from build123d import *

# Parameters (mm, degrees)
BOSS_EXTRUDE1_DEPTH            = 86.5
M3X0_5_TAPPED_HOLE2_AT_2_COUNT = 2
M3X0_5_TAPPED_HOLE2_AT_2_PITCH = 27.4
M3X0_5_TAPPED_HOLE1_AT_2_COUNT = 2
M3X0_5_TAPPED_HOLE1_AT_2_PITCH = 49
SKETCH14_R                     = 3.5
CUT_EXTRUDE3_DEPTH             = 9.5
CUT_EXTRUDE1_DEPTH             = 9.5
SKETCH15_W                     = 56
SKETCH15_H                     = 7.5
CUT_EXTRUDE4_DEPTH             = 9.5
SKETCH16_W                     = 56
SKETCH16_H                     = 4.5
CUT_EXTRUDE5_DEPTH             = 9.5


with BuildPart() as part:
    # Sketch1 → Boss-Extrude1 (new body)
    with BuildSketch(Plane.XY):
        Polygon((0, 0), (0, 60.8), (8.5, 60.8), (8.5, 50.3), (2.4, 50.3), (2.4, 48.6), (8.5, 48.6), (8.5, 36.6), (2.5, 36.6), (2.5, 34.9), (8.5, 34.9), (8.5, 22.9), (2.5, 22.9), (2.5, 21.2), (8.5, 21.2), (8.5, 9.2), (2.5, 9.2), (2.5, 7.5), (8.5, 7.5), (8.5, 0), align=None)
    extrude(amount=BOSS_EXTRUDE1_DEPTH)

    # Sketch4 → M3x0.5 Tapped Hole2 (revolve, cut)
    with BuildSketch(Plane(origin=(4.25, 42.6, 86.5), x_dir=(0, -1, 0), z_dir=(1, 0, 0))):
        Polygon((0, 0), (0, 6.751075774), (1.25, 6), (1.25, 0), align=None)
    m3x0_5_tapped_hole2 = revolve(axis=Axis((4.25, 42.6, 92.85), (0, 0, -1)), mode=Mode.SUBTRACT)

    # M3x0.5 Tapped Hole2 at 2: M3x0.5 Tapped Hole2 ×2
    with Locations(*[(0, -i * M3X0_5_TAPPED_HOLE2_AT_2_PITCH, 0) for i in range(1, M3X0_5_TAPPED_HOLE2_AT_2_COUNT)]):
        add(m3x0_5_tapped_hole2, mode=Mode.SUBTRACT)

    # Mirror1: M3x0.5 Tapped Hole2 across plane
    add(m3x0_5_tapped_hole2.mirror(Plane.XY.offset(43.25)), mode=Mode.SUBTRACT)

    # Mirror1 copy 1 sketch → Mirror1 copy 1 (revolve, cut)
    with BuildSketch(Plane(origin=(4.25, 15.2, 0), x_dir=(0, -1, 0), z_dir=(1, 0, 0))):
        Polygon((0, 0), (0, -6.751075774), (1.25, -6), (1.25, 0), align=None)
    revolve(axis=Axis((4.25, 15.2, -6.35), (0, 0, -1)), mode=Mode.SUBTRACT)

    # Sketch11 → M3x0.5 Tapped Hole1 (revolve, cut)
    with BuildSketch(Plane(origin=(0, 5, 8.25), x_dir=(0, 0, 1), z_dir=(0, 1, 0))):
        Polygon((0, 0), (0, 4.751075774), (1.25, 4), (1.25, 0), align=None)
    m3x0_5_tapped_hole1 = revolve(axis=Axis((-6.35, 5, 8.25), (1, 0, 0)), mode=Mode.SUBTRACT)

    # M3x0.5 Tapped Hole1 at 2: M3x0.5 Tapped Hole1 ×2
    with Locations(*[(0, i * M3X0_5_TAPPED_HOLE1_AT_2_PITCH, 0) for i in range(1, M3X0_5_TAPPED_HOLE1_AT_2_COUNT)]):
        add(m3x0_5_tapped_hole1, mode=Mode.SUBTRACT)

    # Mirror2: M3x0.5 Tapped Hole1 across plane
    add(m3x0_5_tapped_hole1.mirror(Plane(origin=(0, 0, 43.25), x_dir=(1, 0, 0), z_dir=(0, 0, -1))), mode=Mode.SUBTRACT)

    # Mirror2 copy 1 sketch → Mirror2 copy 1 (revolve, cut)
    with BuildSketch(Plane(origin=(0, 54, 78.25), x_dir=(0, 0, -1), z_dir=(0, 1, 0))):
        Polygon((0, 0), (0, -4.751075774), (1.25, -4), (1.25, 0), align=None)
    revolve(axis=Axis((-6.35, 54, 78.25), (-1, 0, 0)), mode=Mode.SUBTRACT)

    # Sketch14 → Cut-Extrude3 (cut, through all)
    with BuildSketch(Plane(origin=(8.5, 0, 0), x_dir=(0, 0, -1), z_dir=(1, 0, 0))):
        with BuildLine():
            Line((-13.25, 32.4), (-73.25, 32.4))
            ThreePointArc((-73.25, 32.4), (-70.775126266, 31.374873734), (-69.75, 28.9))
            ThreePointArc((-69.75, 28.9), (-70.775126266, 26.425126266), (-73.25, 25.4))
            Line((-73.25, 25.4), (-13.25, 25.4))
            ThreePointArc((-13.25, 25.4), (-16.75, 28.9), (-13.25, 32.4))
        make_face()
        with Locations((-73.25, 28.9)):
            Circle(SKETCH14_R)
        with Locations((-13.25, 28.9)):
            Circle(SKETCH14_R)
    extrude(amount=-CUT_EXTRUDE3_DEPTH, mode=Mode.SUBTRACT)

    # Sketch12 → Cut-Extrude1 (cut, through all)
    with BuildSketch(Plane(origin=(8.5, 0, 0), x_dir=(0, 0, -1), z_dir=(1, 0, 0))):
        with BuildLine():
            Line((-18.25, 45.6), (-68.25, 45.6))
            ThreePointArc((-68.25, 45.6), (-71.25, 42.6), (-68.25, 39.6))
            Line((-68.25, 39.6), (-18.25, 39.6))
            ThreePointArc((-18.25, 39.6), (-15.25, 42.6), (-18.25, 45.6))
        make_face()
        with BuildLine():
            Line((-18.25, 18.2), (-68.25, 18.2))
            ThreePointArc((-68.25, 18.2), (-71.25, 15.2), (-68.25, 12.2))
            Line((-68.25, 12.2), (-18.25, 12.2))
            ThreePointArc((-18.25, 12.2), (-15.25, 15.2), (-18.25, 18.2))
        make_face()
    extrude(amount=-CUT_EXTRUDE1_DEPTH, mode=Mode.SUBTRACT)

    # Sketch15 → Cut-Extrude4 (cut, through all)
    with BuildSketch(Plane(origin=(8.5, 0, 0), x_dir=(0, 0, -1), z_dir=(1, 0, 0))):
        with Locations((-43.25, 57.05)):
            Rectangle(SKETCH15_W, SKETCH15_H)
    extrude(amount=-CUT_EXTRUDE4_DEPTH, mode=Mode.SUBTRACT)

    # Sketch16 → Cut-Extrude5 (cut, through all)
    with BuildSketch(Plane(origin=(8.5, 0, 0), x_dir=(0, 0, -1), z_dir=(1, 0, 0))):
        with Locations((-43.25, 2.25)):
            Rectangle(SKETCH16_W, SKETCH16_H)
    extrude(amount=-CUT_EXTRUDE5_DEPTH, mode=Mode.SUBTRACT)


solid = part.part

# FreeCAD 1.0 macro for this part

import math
import FreeCAD as App
import Part
import Sketcher
from FreeCAD import Vector
Q = App.Units.Quantity


def add_polygon(sketch, points):
    """Adds a closed chain of lines whose ends are joined by coincident constraints."""
    first, n = sketch.GeometryCount, len(points)
    for a, b in zip(points, points[1:] + points[:1]):
        sketch.addGeometry(Part.LineSegment(App.Vector(*a, 0), App.Vector(*b, 0)), False)
    for i in range(n):
        sketch.addConstraint(Sketcher.Constraint("Coincident", first + i, 2, first + (i + 1) % n, 1))

doc = App.newDocument("Part")
body = doc.addObject("PartDesign::Body", "Body")

# Sketch on XY plane
sketch1 = body.newObject("Sketcher::SketchObject", "Sketch")
sketch1.AttachmentSupport = (doc.getObject("XY_Plane"), [""])
sketch1.MapMode = "FlatFace"
add_polygon(sketch1, [(0, 60.8), (0, 0), (8.5, 0), (8.5, 7.5), (2.5, 7.5), (2.5, 9.2), (8.5, 9.2), (8.5, 21.2), (2.5, 21.2), (2.5, 22.9), (8.5, 22.9), (8.5, 34.9), (2.5, 34.9), (2.5, 36.6), (8.5, 36.6), (8.5, 48.6), (2.4, 48.6), (2.4, 50.3), (8.5, 50.3), (8.5, 60.8)])  # lines 0-19
sketch1.addConstraint(Sketcher.Constraint("Vertical", 0))
sketch1.addConstraint(Sketcher.Constraint("Horizontal", 1))
sketch1.addConstraint(Sketcher.Constraint("Vertical", 2))
sketch1.addConstraint(Sketcher.Constraint("Horizontal", 3))
sketch1.addConstraint(Sketcher.Constraint("Vertical", 4))
sketch1.addConstraint(Sketcher.Constraint("Horizontal", 5))
sketch1.addConstraint(Sketcher.Constraint("Vertical", 6))
sketch1.addConstraint(Sketcher.Constraint("Horizontal", 7))
sketch1.addConstraint(Sketcher.Constraint("Vertical", 8))
sketch1.addConstraint(Sketcher.Constraint("Horizontal", 9))
sketch1.addConstraint(Sketcher.Constraint("Vertical", 10))
sketch1.addConstraint(Sketcher.Constraint("Horizontal", 11))
sketch1.addConstraint(Sketcher.Constraint("Vertical", 12))
sketch1.addConstraint(Sketcher.Constraint("Horizontal", 13))
sketch1.addConstraint(Sketcher.Constraint("Vertical", 14))
sketch1.addConstraint(Sketcher.Constraint("Horizontal", 15))
sketch1.addConstraint(Sketcher.Constraint("Vertical", 16))
sketch1.addConstraint(Sketcher.Constraint("Horizontal", 17))
sketch1.addConstraint(Sketcher.Constraint("Vertical", 18))
sketch1.addConstraint(Sketcher.Constraint("Horizontal", 19))
sketch1.addConstraint(Sketcher.Constraint("Coincident", 0, 2, -1, 1))
sketch1.addConstraint(Sketcher.Constraint("Vertical", 2, 2, 5, 2))
sketch1.addConstraint(Sketcher.Constraint("Vertical", 4, 2, 7, 2))
sketch1.addConstraint(Sketcher.Constraint("Vertical", 6, 2, 9, 2))
sketch1.addConstraint(Sketcher.Constraint("Vertical", 8, 2, 11, 2))
sketch1.addConstraint(Sketcher.Constraint("Vertical", 10, 2, 13, 2))
sketch1.addConstraint(Sketcher.Constraint("Vertical", 14, 2, 17, 2))
sketch1.addConstraint(Sketcher.Constraint("Equal", 4, 8))
sketch1.addConstraint(Sketcher.Constraint("Equal", 6, 10))
sketch1.addConstraint(Sketcher.Constraint("Equal", 8, 12))
sketch1.addConstraint(Sketcher.Constraint("Equal", 10, 14))
sketch1.addConstraint(Sketcher.Constraint("Equal", 12, 16))
sketch1.addConstraint(Sketcher.Constraint("DistanceX", 3, 2, 3, 1, Q("6 mm")))
sketch1.addConstraint(Sketcher.Constraint("DistanceY", 6, 1, 6, 2, Q("12 mm")))
sketch1.addConstraint(Sketcher.Constraint("DistanceX", 1, 1, 1, 2, Q("8.5 mm")))
sketch1.addConstraint(Sketcher.Constraint("DistanceX", 15, 2, 15, 1, Q("6.1 mm")))
sketch1.addConstraint(Sketcher.Constraint("DistanceY", 0, 2, 0, 1, Q("60.8 mm")))
sketch1.addConstraint(Sketcher.Constraint("DistanceY", 2, 1, 2, 2, Q("7.5 mm")))
sketch1.addConstraint(Sketcher.Constraint("DistanceY", 4, 1, 4, 2, Q("1.7 mm")))
pad1 = body.newObject("PartDesign::Pad", "Pad")
pad1.Profile = sketch1
pad1.Length = 86.5

# Sketch on YZ plane
sketch2 = body.newObject("Sketcher::SketchObject", "Sketch001")
sketch2.AttachmentSupport = (doc.getObject("YZ_Plane"), [""])
sketch2.MapMode = "FlatFace"
sketch2.AttachmentOffset = App.Placement(Vector(0, 0, 4.25), App.Rotation())
add_polygon(sketch2, [(42.6, 79.7), (42.6, 86.5), (41.4, 86.5), (41.4, 80.5)])  # lines 0-3
sketch2.addGeometry(Part.LineSegment(Vector(42.6, 86.5, 0), Vector(42.6, 79.7, 0)), True)  # axis
sketch2.addConstraint(Sketcher.Constraint("Vertical", 0))
sketch2.addConstraint(Sketcher.Constraint("Horizontal", 1))
sketch2.addConstraint(Sketcher.Constraint("Vertical", 2))
sketch2.addConstraint(Sketcher.Constraint("Vertical", 4))
sketch2.addConstraint(Sketcher.Constraint("Coincident", 4, 1, 0, 2))
sketch2.addConstraint(Sketcher.Constraint("Equal", 0, 4))
sketch2.addConstraint(Sketcher.Constraint("DistanceY", 2, 2, 2, 1, Q("6 mm")))
sketch2.addConstraint(Sketcher.Constraint("Angle", 3, Q("-31 deg")))
sketch2.addConstraint(Sketcher.Constraint("DistanceX", 1, 2, 1, 1, Q("1.25 mm")))
sketch2.addConstraint(Sketcher.Constraint("DistanceX", -1, 1, 0, 2, Q("42.6 mm")))
sketch2.addConstraint(Sketcher.Constraint("DistanceY", -1, 1, 0, 2, Q("86.5 mm")))
groove = body.newObject("PartDesign::Groove", "Groove")
groove.Profile = sketch2
groove.ReferenceAxis = (sketch2, ["Axis0"])
groove.Angle = 360
doc.recompute()

linearpattern = body.newObject("PartDesign::LinearPattern", "LinearPattern")
linearpattern.Originals = [groove]
linearpattern.Direction = (doc.getObject("Y_Axis"), [""])
linearpattern.Mode = "offset"
linearpattern.Offset = 27.4
linearpattern.Occurrences = 2
linearpattern.Reversed = True
body.Tip = linearpattern
doc.recompute()

datumplane = body.newObject("PartDesign::Plane", "DatumPlane")
datumplane.AttachmentSupport = (doc.getObject("XY_Plane"), [""])
datumplane.MapMode = "FlatFace"
datumplane.AttachmentOffset = App.Placement(Vector(0, 0, 43.25), App.Rotation())
mirrored = body.newObject("PartDesign::Mirrored", "Mirrored")
mirrored.Originals = [groove]
mirrored.MirrorPlane = (datumplane, [""])
body.Tip = mirrored

# Sketch on YZ plane
sketch3 = body.newObject("Sketcher::SketchObject", "Sketch002")
sketch3.AttachmentSupport = (doc.getObject("YZ_Plane"), [""])
sketch3.MapMode = "FlatFace"
sketch3.AttachmentOffset = App.Placement(Vector(0, 0, 4.25), App.Rotation())
add_polygon(sketch3, [(15.2, 0), (15.2, 6.8), (13.9, 6), (13.9, 0)])  # lines 0-3
sketch3.addGeometry(Part.LineSegment(Vector(15.2, 6.8, 0), Vector(15.2, 0, 0)), True)  # axis
sketch3.addConstraint(Sketcher.Constraint("Vertical", 0))
sketch3.addConstraint(Sketcher.Constraint("Vertical", 2))
sketch3.addConstraint(Sketcher.Constraint("Horizontal", 3))
sketch3.addConstraint(Sketcher.Constraint("Vertical", 4))
sketch3.addConstraint(Sketcher.Constraint("Coincident", 4, 1, 0, 2))
sketch3.addConstraint(Sketcher.Constraint("PointOnObject", 2, 2, -1))
sketch3.addConstraint(Sketcher.Constraint("PointOnObject", 4, 2, -1))
sketch3.addConstraint(Sketcher.Constraint("DistanceY", 2, 2, 2, 1, Q("6 mm")))
sketch3.addConstraint(Sketcher.Constraint("Angle", 1, Q("-149 deg")))
sketch3.addConstraint(Sketcher.Constraint("DistanceX", 3, 1, 3, 2, Q("1.25 mm")))
sketch3.addConstraint(Sketcher.Constraint("DistanceX", -1, 1, 0, 2, Q("15.2 mm")))
groove2 = body.newObject("PartDesign::Groove", "Groove001")
groove2.Profile = sketch3
groove2.ReferenceAxis = (sketch3, ["Axis0"])
groove2.Angle = 360

# Sketch on XZ plane
sketch4 = body.newObject("Sketcher::SketchObject", "Sketch003")
sketch4.AttachmentSupport = (doc.getObject("XZ_Plane"), [""])
sketch4.MapMode = "FlatFace"
sketch4.AttachmentOffset = App.Placement(Vector(0, 0, -5), App.Rotation())
add_polygon(sketch4, [(4.8, 8.2), (0, 8.2), (0, 9.5), (4, 9.5)])  # lines 0-3
sketch4.addGeometry(Part.LineSegment(Vector(0, 8.2, 0), Vector(4.8, 8.2, 0)), True)  # axis
sketch4.addConstraint(Sketcher.Constraint("Horizontal", 0))
sketch4.addConstraint(Sketcher.Constraint("Vertical", 1))
sketch4.addConstraint(Sketcher.Constraint("Horizontal", 2))
sketch4.addConstraint(Sketcher.Constraint("Horizontal", 4))
sketch4.addConstraint(Sketcher.Constraint("Coincident", 4, 1, 0, 2))
sketch4.addConstraint(Sketcher.Constraint("PointOnObject", 0, 2, -2))
sketch4.addConstraint(Sketcher.Constraint("Equal", 0, 4))
sketch4.addConstraint(Sketcher.Constraint("DistanceX", 2, 1, 2, 2, Q("4 mm")))
sketch4.addConstraint(Sketcher.Constraint("Angle", 3, Q("-59 deg")))
sketch4.addConstraint(Sketcher.Constraint("DistanceY", 1, 1, 1, 2, Q("1.25 mm")))
sketch4.addConstraint(Sketcher.Constraint("DistanceY", -1, 1, 1, 2, Q("9.5 mm")))
groove3 = body.newObject("PartDesign::Groove", "Groove002")
groove3.Profile = sketch4
groove3.ReferenceAxis = (sketch4, ["Axis0"])
groove3.Angle = 360
doc.recompute()

linearpattern2 = body.newObject("PartDesign::LinearPattern", "LinearPattern001")
linearpattern2.Originals = [groove3]
linearpattern2.Direction = (doc.getObject("Y_Axis"), [""])
linearpattern2.Mode = "offset"
linearpattern2.Offset = 49
linearpattern2.Occurrences = 2
body.Tip = linearpattern2
doc.recompute()

datumplane2 = body.newObject("PartDesign::Plane", "DatumPlane001")
datumplane2.AttachmentSupport = (doc.getObject("XY_Plane"), [""])
datumplane2.MapMode = "FlatFace"
datumplane2.AttachmentOffset = App.Placement(Vector(0, 0, 43.25), App.Rotation())
mirrored2 = body.newObject("PartDesign::Mirrored", "Mirrored001")
mirrored2.Originals = [groove3]
mirrored2.MirrorPlane = (datumplane2, [""])
body.Tip = mirrored2

# Sketch on XZ plane
sketch5 = body.newObject("Sketcher::SketchObject", "Sketch004")
sketch5.AttachmentSupport = (doc.getObject("XZ_Plane"), [""])
sketch5.MapMode = "FlatFace"
sketch5.AttachmentOffset = App.Placement(Vector(0, 0, -54), App.Rotation())
add_polygon(sketch5, [(0, 78.2), (4.8, 78.2), (4, 77), (0, 77)])  # lines 0-3
sketch5.addGeometry(Part.LineSegment(Vector(4.8, 78.2, 0), Vector(0, 78.2, 0)), True)  # axis
sketch5.addConstraint(Sketcher.Constraint("Horizontal", 0))
sketch5.addConstraint(Sketcher.Constraint("Horizontal", 2))
sketch5.addConstraint(Sketcher.Constraint("Vertical", 3))
sketch5.addConstraint(Sketcher.Constraint("Horizontal", 4))
sketch5.addConstraint(Sketcher.Constraint("Coincident", 4, 1, 0, 2))
sketch5.addConstraint(Sketcher.Constraint("PointOnObject", 2, 2, -2))
sketch5.addConstraint(Sketcher.Constraint("PointOnObject", 4, 2, -2))
sketch5.addConstraint(Sketcher.Constraint("DistanceX", 2, 2, 2, 1, Q("4 mm")))
sketch5.addConstraint(Sketcher.Constraint("Angle", 1, Q("-121 deg")))
sketch5.addConstraint(Sketcher.Constraint("DistanceY", -1, 1, 1, 2, Q("77 mm")))
sketch5.addConstraint(Sketcher.Constraint("DistanceY", 3, 1, 3, 2, Q("1.25 mm")))
groove4 = body.newObject("PartDesign::Groove", "Groove003")
groove4.Profile = sketch5
groove4.ReferenceAxis = (sketch5, ["Axis0"])
groove4.Angle = 360

# Sketch on YZ plane
sketch6 = body.newObject("Sketcher::SketchObject", "Sketch005")
sketch6.AttachmentSupport = (doc.getObject("YZ_Plane"), [""])
sketch6.MapMode = "FlatFace"
sketch6.AttachmentOffset = App.Placement(Vector(0, 0, 8.5), App.Rotation())
sketch6.addGeometry(Part.LineSegment(Vector(32.4, 13.2, 0), Vector(32.4, 73.2, 0)), False)
sketch6.addGeometry(Part.ArcOfCircle(Part.Circle(Vector(28.9, 73.2, 0), Vector(0, 0, 1), 3.5), math.radians(0), math.radians(180)), False)
sketch6.addGeometry(Part.LineSegment(Vector(25.4, 73.2, 0), Vector(25.4, 13.2, 0)), False)
sketch6.addGeometry(Part.ArcOfCircle(Part.Circle(Vector(28.9, 13.2, 0), Vector(0, 0, 1), 3.5), math.radians(180), math.radians(360)), False)
sketch6.addConstraint(Sketcher.Constraint("Tangent", 0, 2, 1, 1))
sketch6.addConstraint(Sketcher.Constraint("Tangent", 1, 2, 2, 1))
sketch6.addConstraint(Sketcher.Constraint("Tangent", 2, 2, 3, 1))
sketch6.addConstraint(Sketcher.Constraint("Tangent", 3, 2, 0, 1))
sketch6.addConstraint(Sketcher.Constraint("Vertical", 0))
sketch6.addConstraint(Sketcher.Constraint("Vertical", 2))
sketch6.addConstraint(Sketcher.Constraint("Radius", 1, Q("3.5 mm")))
sketch6.addConstraint(Sketcher.Constraint("DistanceY", 0, 1, 0, 2, Q("60 mm")))
sketch6.addConstraint(Sketcher.Constraint("DistanceX", -1, 1, 1, 3, Q("28.9 mm")))
sketch6.addConstraint(Sketcher.Constraint("DistanceY", -1, 1, 1, 3, Q("73.25 mm")))
pocket1 = body.newObject("PartDesign::Pocket", "Pocket")
pocket1.Profile = sketch6
pocket1.Type = "ThroughAll"

# Sketch on YZ plane
sketch7 = body.newObject("Sketcher::SketchObject", "Sketch006")
sketch7.AttachmentSupport = (doc.getObject("YZ_Plane"), [""])
sketch7.MapMode = "FlatFace"
sketch7.AttachmentOffset = App.Placement(Vector(0, 0, 8.5), App.Rotation())
sketch7.addGeometry(Part.LineSegment(Vector(45.6, 18.2, 0), Vector(45.6, 68.2, 0)), False)
sketch7.addGeometry(Part.ArcOfCircle(Part.Circle(Vector(42.6, 68.2, 0), Vector(0, 0, 1), 3), math.radians(0), math.radians(180)), False)
sketch7.addGeometry(Part.LineSegment(Vector(39.6, 68.2, 0), Vector(39.6, 18.2, 0)), False)
sketch7.addGeometry(Part.ArcOfCircle(Part.Circle(Vector(42.6, 18.2, 0), Vector(0, 0, 1), 3), math.radians(180), math.radians(360)), False)
sketch7.addGeometry(Part.LineSegment(Vector(18.2, 18.2, 0), Vector(18.2, 68.2, 0)), False)
sketch7.addGeometry(Part.ArcOfCircle(Part.Circle(Vector(15.2, 68.2, 0), Vector(0, 0, 1), 3), math.radians(0), math.radians(180)), False)
sketch7.addGeometry(Part.LineSegment(Vector(12.2, 68.2, 0), Vector(12.2, 18.2, 0)), False)
sketch7.addGeometry(Part.ArcOfCircle(Part.Circle(Vector(15.2, 18.2, 0), Vector(0, 0, 1), 3), math.radians(180), math.radians(360)), False)
sketch7.addConstraint(Sketcher.Constraint("Tangent", 0, 2, 1, 1))
sketch7.addConstraint(Sketcher.Constraint("Tangent", 1, 2, 2, 1))
sketch7.addConstraint(Sketcher.Constraint("Tangent", 2, 2, 3, 1))
sketch7.addConstraint(Sketcher.Constraint("Tangent", 3, 2, 0, 1))
sketch7.addConstraint(Sketcher.Constraint("Tangent", 4, 2, 5, 1))
sketch7.addConstraint(Sketcher.Constraint("Tangent", 5, 2, 6, 1))
sketch7.addConstraint(Sketcher.Constraint("Tangent", 6, 2, 7, 1))
sketch7.addConstraint(Sketcher.Constraint("Tangent", 7, 2, 4, 1))
sketch7.addConstraint(Sketcher.Constraint("Vertical", 0))
sketch7.addConstraint(Sketcher.Constraint("Vertical", 2))
sketch7.addConstraint(Sketcher.Constraint("Vertical", 4))
sketch7.addConstraint(Sketcher.Constraint("Vertical", 6))
sketch7.addConstraint(Sketcher.Constraint("Equal", 3, 5))
sketch7.addConstraint(Sketcher.Constraint("Horizontal", 1, 3, 5, 3))
sketch7.addConstraint(Sketcher.Constraint("Horizontal", 3, 3, 7, 3))
sketch7.addConstraint(Sketcher.Constraint("Radius", 1, Q("3 mm")))
sketch7.addConstraint(Sketcher.Constraint("DistanceY", 0, 1, 0, 2, Q("50 mm")))
sketch7.addConstraint(Sketcher.Constraint("DistanceX", -1, 1, 1, 3, Q("42.6 mm")))
sketch7.addConstraint(Sketcher.Constraint("DistanceX", -1, 1, 5, 3, Q("15.2 mm")))
sketch7.addConstraint(Sketcher.Constraint("DistanceY", -1, 1, 1, 3, Q("68.25 mm")))
pocket2 = body.newObject("PartDesign::Pocket", "Pocket001")
pocket2.Profile = sketch7
pocket2.Type = "ThroughAll"

# Sketch on YZ plane
sketch8 = body.newObject("Sketcher::SketchObject", "Sketch007")
sketch8.AttachmentSupport = (doc.getObject("YZ_Plane"), [""])
sketch8.MapMode = "FlatFace"
sketch8.AttachmentOffset = App.Placement(Vector(0, 0, 8.5), App.Rotation())
add_polygon(sketch8, [(61, 71), (53, 71), (53, 15), (61, 15)])  # lines 0-3
sketch8.addConstraint(Sketcher.Constraint("Horizontal", 0))
sketch8.addConstraint(Sketcher.Constraint("Vertical", 1))
sketch8.addConstraint(Sketcher.Constraint("Horizontal", 2))
sketch8.addConstraint(Sketcher.Constraint("Vertical", 3))
sketch8.addConstraint(Sketcher.Constraint("DistanceY", 1, 2, 1, 1, Q("56 mm")))
sketch8.addConstraint(Sketcher.Constraint("DistanceX", 0, 2, 0, 1, Q("7.5 mm")))
sketch8.addConstraint(Sketcher.Constraint("DistanceX", -1, 1, 0, 2, Q("53.3 mm")))
sketch8.addConstraint(Sketcher.Constraint("DistanceY", -1, 1, 0, 2, Q("71.25 mm")))
pocket3 = body.newObject("PartDesign::Pocket", "Pocket002")
pocket3.Profile = sketch8
pocket3.Type = "ThroughAll"

# Sketch on YZ plane
sketch9 = body.newObject("Sketcher::SketchObject", "Sketch008")
sketch9.AttachmentSupport = (doc.getObject("YZ_Plane"), [""])
sketch9.MapMode = "FlatFace"
sketch9.AttachmentOffset = App.Placement(Vector(0, 0, 8.5), App.Rotation())
add_polygon(sketch9, [(4.5, 71.2), (0, 71.2), (0, 15.2), (4.5, 15.2)])  # lines 0-3
sketch9.addConstraint(Sketcher.Constraint("Horizontal", 0))
sketch9.addConstraint(Sketcher.Constraint("Vertical", 1))
sketch9.addConstraint(Sketcher.Constraint("Horizontal", 2))
sketch9.addConstraint(Sketcher.Constraint("Vertical", 3))
sketch9.addConstraint(Sketcher.Constraint("PointOnObject", 0, 2, -2))
sketch9.addConstraint(Sketcher.Constraint("DistanceY", 1, 2, 1, 1, Q("56 mm")))
sketch9.addConstraint(Sketcher.Constraint("DistanceX", 0, 2, 0, 1, Q("4.5 mm")))
sketch9.addConstraint(Sketcher.Constraint("DistanceY", -1, 1, 0, 2, Q("71.25 mm")))
pocket4 = body.newObject("PartDesign::Pocket", "Pocket003")
pocket4.Profile = sketch9
pocket4.Type = "ThroughAll"

doc.recompute()
